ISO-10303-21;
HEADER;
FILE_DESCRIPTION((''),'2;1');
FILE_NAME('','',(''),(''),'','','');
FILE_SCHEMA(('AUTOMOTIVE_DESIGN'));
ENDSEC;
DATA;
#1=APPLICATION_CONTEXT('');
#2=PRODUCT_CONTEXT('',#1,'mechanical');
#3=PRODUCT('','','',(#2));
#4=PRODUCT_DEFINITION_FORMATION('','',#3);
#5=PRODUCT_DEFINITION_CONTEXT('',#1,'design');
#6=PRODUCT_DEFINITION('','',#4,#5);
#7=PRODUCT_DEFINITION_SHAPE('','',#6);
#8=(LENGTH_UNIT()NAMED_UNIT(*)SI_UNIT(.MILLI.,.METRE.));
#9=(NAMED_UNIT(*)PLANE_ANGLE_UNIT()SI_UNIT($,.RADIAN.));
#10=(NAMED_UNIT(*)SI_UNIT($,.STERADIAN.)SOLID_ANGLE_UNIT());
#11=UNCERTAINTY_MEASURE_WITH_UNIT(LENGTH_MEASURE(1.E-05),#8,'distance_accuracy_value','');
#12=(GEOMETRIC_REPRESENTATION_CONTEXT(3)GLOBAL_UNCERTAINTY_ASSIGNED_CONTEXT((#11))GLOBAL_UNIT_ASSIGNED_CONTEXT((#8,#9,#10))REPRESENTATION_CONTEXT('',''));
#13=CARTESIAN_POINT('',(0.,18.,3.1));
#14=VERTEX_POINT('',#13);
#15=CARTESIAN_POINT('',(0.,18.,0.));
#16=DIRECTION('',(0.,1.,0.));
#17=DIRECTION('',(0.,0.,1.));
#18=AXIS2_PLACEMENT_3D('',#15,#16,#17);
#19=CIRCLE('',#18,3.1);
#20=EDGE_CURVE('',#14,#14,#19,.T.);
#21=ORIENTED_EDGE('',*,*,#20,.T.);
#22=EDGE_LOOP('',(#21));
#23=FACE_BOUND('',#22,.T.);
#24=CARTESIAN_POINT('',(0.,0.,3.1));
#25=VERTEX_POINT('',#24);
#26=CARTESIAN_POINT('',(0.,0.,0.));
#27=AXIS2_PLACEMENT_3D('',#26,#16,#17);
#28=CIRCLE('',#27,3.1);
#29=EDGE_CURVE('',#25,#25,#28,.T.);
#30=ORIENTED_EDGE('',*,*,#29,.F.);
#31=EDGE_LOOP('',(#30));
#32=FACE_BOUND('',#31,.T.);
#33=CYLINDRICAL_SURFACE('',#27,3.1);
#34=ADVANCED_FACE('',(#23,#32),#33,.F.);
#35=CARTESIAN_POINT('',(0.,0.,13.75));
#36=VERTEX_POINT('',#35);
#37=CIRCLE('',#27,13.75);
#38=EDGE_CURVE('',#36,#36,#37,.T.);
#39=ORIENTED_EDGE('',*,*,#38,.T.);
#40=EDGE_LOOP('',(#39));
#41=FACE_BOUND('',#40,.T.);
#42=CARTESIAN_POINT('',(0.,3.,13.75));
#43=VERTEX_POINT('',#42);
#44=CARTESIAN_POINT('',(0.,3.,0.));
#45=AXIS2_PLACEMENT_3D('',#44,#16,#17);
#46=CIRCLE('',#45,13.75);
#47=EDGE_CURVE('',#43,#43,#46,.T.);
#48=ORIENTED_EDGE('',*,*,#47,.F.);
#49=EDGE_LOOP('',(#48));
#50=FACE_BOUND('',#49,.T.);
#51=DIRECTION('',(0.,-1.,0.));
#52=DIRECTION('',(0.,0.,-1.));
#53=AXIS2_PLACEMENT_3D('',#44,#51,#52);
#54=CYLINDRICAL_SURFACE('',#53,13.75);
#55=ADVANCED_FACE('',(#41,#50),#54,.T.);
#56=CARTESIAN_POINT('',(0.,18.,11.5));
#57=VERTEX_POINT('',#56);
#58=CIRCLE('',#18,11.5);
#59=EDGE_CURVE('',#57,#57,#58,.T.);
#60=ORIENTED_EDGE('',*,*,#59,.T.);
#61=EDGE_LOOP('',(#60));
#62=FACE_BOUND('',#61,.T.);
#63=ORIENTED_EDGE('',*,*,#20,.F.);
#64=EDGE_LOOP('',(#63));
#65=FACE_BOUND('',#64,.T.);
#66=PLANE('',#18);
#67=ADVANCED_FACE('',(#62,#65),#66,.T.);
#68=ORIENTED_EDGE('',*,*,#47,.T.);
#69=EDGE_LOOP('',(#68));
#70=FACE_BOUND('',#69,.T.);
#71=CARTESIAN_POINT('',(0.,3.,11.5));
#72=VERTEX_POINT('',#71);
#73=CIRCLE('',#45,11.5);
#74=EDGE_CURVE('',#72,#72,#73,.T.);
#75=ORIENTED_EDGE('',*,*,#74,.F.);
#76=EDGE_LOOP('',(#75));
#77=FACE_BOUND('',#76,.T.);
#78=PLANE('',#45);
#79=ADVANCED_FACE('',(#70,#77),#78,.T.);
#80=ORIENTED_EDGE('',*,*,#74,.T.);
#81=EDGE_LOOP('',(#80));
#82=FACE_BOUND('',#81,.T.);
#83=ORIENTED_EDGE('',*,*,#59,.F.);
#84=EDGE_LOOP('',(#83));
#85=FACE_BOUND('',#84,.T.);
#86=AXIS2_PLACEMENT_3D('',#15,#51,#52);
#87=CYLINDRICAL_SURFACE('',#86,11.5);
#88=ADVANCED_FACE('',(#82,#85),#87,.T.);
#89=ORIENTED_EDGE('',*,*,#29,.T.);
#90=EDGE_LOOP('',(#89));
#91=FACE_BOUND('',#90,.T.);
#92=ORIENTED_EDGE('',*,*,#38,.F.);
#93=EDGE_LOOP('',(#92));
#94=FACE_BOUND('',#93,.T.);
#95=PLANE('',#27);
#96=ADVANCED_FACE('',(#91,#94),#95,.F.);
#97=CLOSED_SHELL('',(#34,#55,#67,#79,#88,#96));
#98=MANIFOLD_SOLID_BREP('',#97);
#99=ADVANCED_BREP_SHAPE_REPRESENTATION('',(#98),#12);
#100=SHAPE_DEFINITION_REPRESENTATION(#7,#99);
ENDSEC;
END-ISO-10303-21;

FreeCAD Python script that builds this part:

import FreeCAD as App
import Part
import Sketcher

V = App.Vector
Q = App.Units.Quantity

doc = App.newDocument("Part")
body = doc.addObject("PartDesign::Body", "Body")

sketch1 = body.newObject("Sketcher::SketchObject", "Sketch")
sketch1.AttachmentSupport = (doc.getObject("XZ_Plane"), [""])
sketch1.MapMode = "FlatFace"
sketch1.addGeometry(Part.Circle(V(0, 0, 0), V(0, 0, 1), 13.75), False)
sketch1.addConstraint(Sketcher.Constraint("Coincident", 0, 3, -1, 1))
sketch1.addConstraint(Sketcher.Constraint("Diameter", 0, Q("27.5 mm")))
pad1 = body.newObject("PartDesign::Pad", "Pad")
pad1.Profile = sketch1
pad1.Length = 3
pad1.Reversed = True

sketch2 = body.newObject("Sketcher::SketchObject", "Sketch001")
sketch2.AttachmentSupport = (doc.getObject("XZ_Plane"), [""])
sketch2.MapMode = "FlatFace"
sketch2.AttachmentOffset = App.Placement(V(0, 0, -3), App.Rotation())
sketch2.addGeometry(Part.Circle(V(0, 0, 0), V(0, 0, 1), 11.5), False)
sketch2.addConstraint(Sketcher.Constraint("Coincident", 0, 3, -1, 1))
sketch2.addConstraint(Sketcher.Constraint("Diameter", 0, Q("23 mm")))
pad2 = body.newObject("PartDesign::Pad", "Pad001")
pad2.Profile = sketch2
pad2.Length = 15
pad2.Reversed = True

sketch3 = body.newObject("Sketcher::SketchObject", "Sketch002")
sketch3.AttachmentSupport = (doc.getObject("XZ_Plane"), [""])
sketch3.MapMode = "FlatFace"
sketch3.AttachmentOffset = App.Placement(V(0, 0, -18), App.Rotation())
sketch3.addGeometry(Part.Circle(V(0, 0, 0), V(0, 0, 1), 3.1), False)
sketch3.addConstraint(Sketcher.Constraint("Coincident", 0, 3, -1, 1))
sketch3.addConstraint(Sketcher.Constraint("Diameter", 0, Q("6.2 mm")))
pocket1 = body.newObject("PartDesign::Pocket", "Pocket")
pocket1.Profile = sketch3
pocket1.Type = "ThroughAll"
pocket1.Reversed = True

doc.recompute()
